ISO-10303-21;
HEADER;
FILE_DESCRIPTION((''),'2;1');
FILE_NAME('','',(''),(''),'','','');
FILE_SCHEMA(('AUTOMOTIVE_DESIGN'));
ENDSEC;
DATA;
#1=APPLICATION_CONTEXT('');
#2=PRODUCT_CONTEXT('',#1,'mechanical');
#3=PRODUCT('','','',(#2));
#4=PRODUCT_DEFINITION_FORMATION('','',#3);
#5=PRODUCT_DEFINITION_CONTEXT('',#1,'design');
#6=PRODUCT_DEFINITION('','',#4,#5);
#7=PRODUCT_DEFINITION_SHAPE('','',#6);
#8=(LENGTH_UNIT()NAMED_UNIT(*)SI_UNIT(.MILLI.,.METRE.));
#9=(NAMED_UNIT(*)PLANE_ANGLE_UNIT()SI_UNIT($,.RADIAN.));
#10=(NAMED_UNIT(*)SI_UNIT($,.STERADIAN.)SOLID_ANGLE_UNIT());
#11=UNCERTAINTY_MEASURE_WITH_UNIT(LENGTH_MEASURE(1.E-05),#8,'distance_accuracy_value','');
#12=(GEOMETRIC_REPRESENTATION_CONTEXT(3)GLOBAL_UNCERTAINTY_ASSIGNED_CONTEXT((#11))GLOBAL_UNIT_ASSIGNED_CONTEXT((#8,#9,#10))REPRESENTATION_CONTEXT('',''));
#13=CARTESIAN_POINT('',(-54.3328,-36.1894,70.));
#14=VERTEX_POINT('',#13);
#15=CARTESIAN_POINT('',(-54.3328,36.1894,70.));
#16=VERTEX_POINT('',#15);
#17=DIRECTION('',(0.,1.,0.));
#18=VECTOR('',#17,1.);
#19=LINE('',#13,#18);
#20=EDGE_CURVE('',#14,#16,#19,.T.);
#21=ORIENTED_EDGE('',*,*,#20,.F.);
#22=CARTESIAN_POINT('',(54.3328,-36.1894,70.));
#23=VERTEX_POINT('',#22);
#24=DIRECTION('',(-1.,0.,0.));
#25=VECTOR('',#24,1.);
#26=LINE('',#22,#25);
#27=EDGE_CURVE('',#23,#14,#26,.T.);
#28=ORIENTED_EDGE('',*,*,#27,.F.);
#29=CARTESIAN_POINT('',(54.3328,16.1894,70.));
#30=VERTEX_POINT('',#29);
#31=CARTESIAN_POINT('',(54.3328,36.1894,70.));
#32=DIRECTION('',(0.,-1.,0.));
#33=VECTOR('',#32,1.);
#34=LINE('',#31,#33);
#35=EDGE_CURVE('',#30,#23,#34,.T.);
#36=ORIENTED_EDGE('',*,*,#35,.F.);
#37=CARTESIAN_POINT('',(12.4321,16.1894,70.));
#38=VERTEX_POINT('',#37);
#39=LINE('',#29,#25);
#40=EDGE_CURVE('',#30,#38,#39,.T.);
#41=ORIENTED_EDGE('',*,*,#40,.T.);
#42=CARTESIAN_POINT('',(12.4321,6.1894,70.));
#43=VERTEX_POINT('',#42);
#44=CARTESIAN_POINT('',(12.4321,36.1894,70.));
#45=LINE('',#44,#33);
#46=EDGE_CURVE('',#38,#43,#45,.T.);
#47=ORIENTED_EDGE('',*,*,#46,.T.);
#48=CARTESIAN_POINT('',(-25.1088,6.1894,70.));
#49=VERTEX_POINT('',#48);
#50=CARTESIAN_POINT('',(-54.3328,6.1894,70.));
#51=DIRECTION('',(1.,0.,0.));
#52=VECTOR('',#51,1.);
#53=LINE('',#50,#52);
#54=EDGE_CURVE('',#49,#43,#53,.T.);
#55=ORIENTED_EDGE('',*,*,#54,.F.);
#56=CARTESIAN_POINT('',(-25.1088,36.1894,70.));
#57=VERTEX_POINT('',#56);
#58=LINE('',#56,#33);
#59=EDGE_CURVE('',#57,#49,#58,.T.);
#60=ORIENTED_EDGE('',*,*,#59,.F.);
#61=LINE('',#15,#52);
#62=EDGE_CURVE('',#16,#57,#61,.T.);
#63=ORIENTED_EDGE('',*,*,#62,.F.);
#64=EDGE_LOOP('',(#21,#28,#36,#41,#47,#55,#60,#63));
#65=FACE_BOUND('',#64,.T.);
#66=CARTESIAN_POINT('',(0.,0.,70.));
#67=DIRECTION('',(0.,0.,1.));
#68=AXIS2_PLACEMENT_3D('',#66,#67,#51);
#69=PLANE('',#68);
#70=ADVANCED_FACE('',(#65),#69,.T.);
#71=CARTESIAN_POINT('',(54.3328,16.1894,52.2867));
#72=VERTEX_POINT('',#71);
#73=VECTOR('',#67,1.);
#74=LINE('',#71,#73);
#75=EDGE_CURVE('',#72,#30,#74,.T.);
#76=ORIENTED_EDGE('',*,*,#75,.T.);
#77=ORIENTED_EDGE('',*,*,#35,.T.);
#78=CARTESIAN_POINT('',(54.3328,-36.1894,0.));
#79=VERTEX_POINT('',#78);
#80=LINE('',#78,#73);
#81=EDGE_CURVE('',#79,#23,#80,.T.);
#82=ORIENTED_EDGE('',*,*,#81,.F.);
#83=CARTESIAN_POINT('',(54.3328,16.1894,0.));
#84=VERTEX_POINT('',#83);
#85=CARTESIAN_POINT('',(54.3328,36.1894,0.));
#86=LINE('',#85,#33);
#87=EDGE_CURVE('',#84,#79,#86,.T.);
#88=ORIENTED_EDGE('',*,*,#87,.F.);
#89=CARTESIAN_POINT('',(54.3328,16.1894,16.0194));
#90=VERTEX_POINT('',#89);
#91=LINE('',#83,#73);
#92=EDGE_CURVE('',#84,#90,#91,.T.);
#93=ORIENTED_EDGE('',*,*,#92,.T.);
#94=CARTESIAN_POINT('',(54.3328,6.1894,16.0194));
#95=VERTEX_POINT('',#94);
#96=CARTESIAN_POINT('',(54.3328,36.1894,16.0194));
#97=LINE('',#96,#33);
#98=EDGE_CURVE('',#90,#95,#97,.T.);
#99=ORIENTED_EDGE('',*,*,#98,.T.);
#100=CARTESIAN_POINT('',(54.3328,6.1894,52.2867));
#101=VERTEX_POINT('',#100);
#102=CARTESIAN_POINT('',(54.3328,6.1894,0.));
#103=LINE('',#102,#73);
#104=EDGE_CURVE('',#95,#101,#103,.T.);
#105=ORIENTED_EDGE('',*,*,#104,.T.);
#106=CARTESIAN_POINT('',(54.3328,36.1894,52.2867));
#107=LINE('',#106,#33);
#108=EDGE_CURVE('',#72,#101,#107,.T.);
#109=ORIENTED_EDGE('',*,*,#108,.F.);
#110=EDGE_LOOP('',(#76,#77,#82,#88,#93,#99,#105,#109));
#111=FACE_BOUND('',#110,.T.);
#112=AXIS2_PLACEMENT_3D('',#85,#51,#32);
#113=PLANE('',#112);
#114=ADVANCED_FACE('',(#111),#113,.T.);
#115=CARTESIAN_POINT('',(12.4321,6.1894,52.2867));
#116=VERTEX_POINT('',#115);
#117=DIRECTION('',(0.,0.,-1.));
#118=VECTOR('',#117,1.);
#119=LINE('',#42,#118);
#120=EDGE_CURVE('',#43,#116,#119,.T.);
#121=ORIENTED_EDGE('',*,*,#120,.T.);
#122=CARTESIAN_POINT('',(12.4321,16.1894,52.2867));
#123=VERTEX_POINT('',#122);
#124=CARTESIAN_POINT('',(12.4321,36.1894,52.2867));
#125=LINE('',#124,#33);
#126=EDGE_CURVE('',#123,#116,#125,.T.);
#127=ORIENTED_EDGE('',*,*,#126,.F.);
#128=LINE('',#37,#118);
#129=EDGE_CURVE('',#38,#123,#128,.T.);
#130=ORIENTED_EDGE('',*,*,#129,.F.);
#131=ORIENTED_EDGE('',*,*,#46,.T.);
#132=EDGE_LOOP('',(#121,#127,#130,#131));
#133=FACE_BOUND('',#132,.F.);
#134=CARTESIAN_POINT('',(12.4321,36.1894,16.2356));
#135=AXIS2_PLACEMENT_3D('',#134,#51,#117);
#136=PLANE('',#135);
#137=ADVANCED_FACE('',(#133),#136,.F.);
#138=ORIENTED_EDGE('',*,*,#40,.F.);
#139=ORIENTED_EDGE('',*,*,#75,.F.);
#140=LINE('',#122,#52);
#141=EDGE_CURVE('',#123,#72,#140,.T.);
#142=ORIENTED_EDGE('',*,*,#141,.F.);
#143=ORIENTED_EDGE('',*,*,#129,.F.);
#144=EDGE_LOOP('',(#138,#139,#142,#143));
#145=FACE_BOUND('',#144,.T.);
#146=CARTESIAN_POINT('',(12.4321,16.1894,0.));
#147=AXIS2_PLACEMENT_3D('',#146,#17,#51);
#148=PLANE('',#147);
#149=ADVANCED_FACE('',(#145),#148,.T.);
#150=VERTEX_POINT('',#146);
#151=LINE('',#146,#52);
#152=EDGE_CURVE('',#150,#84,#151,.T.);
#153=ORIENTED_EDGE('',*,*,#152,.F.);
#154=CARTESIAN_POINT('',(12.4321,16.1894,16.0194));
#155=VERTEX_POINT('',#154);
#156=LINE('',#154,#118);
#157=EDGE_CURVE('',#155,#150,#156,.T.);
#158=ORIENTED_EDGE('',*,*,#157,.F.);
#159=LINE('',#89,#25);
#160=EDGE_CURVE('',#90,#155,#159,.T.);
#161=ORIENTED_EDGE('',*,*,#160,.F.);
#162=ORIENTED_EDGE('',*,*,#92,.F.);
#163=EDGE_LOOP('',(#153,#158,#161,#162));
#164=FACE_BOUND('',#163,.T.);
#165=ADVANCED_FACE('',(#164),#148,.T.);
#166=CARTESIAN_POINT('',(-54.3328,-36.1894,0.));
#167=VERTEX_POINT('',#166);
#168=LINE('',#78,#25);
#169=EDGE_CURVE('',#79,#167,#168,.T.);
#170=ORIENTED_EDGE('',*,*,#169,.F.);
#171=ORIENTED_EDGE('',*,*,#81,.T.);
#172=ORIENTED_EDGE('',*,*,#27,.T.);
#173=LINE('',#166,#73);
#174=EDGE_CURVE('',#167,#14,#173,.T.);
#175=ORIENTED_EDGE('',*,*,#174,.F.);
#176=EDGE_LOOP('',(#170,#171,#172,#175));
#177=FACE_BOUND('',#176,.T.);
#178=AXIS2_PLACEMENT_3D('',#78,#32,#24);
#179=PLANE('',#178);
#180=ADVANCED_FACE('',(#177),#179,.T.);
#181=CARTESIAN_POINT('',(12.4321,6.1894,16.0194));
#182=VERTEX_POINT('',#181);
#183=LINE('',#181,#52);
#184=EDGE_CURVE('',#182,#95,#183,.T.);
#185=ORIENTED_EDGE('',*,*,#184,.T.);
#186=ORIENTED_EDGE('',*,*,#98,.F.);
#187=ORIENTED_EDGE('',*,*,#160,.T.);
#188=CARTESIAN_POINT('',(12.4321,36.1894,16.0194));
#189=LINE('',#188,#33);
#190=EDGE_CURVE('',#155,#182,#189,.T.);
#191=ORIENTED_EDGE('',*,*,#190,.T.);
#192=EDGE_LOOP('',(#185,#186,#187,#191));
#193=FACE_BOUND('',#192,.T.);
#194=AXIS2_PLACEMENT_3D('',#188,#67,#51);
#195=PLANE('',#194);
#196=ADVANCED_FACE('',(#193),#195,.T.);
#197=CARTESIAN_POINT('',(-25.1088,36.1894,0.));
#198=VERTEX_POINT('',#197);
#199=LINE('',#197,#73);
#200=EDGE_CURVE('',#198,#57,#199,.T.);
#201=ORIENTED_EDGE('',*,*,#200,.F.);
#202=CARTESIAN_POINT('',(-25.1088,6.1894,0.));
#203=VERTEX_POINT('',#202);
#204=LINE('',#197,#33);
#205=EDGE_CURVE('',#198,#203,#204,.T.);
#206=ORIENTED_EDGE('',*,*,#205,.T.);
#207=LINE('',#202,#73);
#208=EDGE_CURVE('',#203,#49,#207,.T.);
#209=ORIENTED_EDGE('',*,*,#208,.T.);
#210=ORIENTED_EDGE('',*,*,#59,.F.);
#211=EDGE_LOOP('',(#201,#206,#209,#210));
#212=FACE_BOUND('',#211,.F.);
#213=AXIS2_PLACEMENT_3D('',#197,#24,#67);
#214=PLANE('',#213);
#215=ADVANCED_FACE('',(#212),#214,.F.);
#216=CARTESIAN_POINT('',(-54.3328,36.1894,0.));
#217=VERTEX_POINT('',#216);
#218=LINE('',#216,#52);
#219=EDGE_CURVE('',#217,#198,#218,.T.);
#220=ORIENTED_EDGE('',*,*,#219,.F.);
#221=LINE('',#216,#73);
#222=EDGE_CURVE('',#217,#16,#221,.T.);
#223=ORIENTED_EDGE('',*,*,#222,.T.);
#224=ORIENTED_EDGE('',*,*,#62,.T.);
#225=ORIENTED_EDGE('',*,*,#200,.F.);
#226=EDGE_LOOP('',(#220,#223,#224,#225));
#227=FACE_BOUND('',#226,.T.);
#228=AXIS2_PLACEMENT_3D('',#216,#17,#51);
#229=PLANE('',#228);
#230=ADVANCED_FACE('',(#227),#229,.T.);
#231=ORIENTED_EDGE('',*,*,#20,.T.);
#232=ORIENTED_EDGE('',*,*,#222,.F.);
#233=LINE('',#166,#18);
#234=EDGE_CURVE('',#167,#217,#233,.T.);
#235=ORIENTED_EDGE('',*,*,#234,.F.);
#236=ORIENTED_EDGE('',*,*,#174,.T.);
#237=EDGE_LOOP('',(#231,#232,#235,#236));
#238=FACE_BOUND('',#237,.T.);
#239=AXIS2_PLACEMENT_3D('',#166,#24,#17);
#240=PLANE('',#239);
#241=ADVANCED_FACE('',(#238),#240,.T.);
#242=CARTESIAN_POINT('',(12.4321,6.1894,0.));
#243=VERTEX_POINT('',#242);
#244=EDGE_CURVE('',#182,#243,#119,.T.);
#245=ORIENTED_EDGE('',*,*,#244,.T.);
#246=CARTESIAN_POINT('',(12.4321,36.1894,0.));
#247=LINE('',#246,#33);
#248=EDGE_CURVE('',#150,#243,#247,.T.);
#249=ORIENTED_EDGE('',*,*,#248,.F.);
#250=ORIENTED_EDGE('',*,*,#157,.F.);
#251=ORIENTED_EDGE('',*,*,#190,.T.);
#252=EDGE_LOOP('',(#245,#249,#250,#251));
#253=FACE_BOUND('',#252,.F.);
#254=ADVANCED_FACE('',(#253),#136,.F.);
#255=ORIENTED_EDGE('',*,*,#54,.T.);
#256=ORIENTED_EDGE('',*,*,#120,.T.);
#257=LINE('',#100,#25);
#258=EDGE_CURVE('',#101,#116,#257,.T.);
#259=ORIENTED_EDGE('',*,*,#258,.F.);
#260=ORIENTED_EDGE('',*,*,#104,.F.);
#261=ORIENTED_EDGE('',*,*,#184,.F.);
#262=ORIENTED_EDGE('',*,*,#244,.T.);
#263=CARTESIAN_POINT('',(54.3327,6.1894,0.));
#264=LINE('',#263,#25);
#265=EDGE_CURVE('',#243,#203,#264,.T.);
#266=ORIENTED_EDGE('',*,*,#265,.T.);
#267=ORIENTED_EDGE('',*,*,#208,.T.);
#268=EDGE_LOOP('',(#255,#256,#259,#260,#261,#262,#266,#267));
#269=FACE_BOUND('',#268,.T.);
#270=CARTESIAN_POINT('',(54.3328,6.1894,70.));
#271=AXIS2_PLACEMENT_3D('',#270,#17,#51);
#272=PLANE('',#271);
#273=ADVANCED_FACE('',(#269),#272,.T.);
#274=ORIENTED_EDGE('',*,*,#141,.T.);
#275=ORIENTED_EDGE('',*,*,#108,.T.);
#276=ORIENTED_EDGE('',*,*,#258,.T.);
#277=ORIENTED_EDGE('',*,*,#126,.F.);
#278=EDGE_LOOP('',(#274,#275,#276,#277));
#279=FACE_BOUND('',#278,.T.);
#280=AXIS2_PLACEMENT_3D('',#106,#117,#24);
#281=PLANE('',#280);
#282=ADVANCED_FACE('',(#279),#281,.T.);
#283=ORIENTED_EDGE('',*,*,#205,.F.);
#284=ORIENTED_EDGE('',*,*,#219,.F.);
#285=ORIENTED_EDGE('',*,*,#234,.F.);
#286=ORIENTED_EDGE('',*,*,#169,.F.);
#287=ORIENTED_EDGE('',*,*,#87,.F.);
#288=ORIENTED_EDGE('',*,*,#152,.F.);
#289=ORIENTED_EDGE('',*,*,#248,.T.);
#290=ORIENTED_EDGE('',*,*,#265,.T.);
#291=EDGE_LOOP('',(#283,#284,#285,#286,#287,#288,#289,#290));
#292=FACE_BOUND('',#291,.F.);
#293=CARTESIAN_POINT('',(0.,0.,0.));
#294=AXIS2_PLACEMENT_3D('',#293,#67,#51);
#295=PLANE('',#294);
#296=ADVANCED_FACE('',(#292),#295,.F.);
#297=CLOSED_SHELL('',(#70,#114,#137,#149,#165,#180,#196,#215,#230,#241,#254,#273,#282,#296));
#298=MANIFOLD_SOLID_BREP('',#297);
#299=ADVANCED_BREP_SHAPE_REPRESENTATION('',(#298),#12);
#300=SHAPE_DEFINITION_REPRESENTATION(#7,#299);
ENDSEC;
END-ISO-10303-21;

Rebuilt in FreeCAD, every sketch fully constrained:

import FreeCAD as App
import Part
import Sketcher
Q = App.Units.Quantity

doc = App.newDocument("Part")
body = doc.addObject("PartDesign::Body", "Body")

# Sketch on XY plane
sketch1 = body.newObject("Sketcher::SketchObject", "Sketch")
sketch1.AttachmentSupport = (doc.getObject("XY_Plane"), [""])
sketch1.MapMode = "FlatFace"
sketch1.addGeometry([
    Part.LineSegment(App.Vector(-54.3328, -36.1894, 0), App.Vector(54.3328, -36.1894, 0)),
    Part.LineSegment(App.Vector(54.3328, -36.1894, 0), App.Vector(54.3328, 36.1894, 0)),
    Part.LineSegment(App.Vector(54.3328, 36.1894, 0), App.Vector(-54.3328, 36.1894, 0)),
    Part.LineSegment(App.Vector(-54.3328, 36.1894, 0), App.Vector(-54.3328, -36.1894, 0)),
], False)
sketch1.addConstraint([
    Sketcher.Constraint("Coincident", 0, 2, 1, 1),
    Sketcher.Constraint("Coincident", 1, 2, 2, 1),
    Sketcher.Constraint("Coincident", 2, 2, 3, 1),
    Sketcher.Constraint("Coincident", 3, 2, 0, 1),
    Sketcher.Constraint("Horizontal", 0),
    Sketcher.Constraint("Vertical", 1),
    Sketcher.Constraint("Horizontal", 2),
    Sketcher.Constraint("Vertical", 3),
    Sketcher.Constraint("Symmetric", 0, 2, 2, 2, -1, 1),
    Sketcher.Constraint("DistanceX", 0, 1, 0, 2, 108.6656),
    Sketcher.Constraint("DistanceY", 1, 1, 1, 2, 72.3788),
])
pad1 = body.newObject("PartDesign::Pad", "Pad")
pad1.Profile = sketch1
pad1.Length = Q("2.7559055 in")

# Sketch on XZ plane
sketch2 = body.newObject("Sketcher::SketchObject", "Sketch001")
sketch2.AttachmentSupport = (doc.getObject("XZ_Plane"), [""])
sketch2.MapMode = "FlatFace"
sketch2.AttachmentOffset = App.Placement(App.Vector(0, 0, -36.1894), App.Rotation())
sketch2.addGeometry([
    Part.LineSegment(App.Vector(-25.1088, 0, 0), App.Vector(-25.1088, 70, 0)),
    Part.LineSegment(App.Vector(-25.1088, 70, 0), App.Vector(12.4321, 70, 0)),
    Part.LineSegment(App.Vector(12.4321, 70, 0), App.Vector(12.4321, 0, 0)),
    Part.LineSegment(App.Vector(12.4321, 0, 0), App.Vector(-25.1088, 0, 0)),
], False)
sketch2.addConstraint([
    Sketcher.Constraint("Coincident", 0, 2, 1, 1),
    Sketcher.Constraint("Coincident", 1, 2, 2, 1),
    Sketcher.Constraint("Coincident", 2, 2, 3, 1),
    Sketcher.Constraint("Coincident", 3, 2, 0, 1),
    Sketcher.Constraint("Vertical", 0),
    Sketcher.Constraint("Horizontal", 1),
    Sketcher.Constraint("Vertical", 2),
    Sketcher.Constraint("Horizontal", 3),
    Sketcher.Constraint("PointOnObject", 2, 2, -1),
    Sketcher.Constraint("DistanceX", 1, 1, 1, 2, Q("1.478 in")),
    Sketcher.Constraint("DistanceY", 0, 1, 0, 2, Q("2.7559 in")),
    Sketcher.Constraint("DistanceX", 0, 2, -1, 1, 25.1088),
])
pocket1 = body.newObject("PartDesign::Pocket", "Pocket")
pocket1.Profile = sketch2
pocket1.Length = Q("1.1811024 in")
pocket1.Reversed = True

# Sketch on XZ plane
sketch3 = body.newObject("Sketcher::SketchObject", "Sketch002")
sketch3.AttachmentSupport = (doc.getObject("XZ_Plane"), [""])
sketch3.MapMode = "FlatFace"
sketch3.AttachmentOffset = App.Placement(App.Vector(0, 0, -36.1894), App.Rotation())
sketch3.addGeometry([
    Part.LineSegment(App.Vector(54.3328, 16.0194, 0), App.Vector(12.4321, 16.0194, 0)),
    Part.LineSegment(App.Vector(12.4321, 16.0194, 0), App.Vector(12.4321, 52.2867, 0)),
    Part.LineSegment(App.Vector(12.4321, 52.2867, 0), App.Vector(54.3328, 52.2867, 0)),
    Part.LineSegment(App.Vector(54.3328, 52.2867, 0), App.Vector(54.3328, 16.0194, 0)),
], False)
sketch3.addConstraint([
    Sketcher.Constraint("Coincident", 0, 2, 1, 1),
    Sketcher.Constraint("Coincident", 1, 2, 2, 1),
    Sketcher.Constraint("Coincident", 2, 2, 3, 1),
    Sketcher.Constraint("Coincident", 3, 2, 0, 1),
    Sketcher.Constraint("Horizontal", 0),
    Sketcher.Constraint("Vertical", 1),
    Sketcher.Constraint("Horizontal", 2),
    Sketcher.Constraint("Vertical", 3),
    Sketcher.Constraint("DistanceX", 0, 2, 0, 1, 41.9007),
    Sketcher.Constraint("DistanceY", 1, 1, 1, 2, 36.2673),
    Sketcher.Constraint("DistanceX", -1, 1, 0, 2, 12.432),
    Sketcher.Constraint("DistanceY", -1, 1, 0, 2, 16.0194),
])
pocket2 = body.newObject("PartDesign::Pocket", "Pocket001")
pocket2.Profile = sketch3
pocket2.Length = Q("1.1811024 in")
pocket2.Reversed = True

# Sketch on XZ plane
sketch4 = body.newObject("Sketcher::SketchObject", "Sketch003")
sketch4.AttachmentSupport = (doc.getObject("XZ_Plane"), [""])
sketch4.MapMode = "FlatFace"
sketch4.AttachmentOffset = App.Placement(App.Vector(0, 0, -36.1894), App.Rotation())
sketch4.addGeometry([
    Part.LineSegment(App.Vector(54.3328, 16.0194, 0), App.Vector(54.3328, 0, 0)),
    Part.LineSegment(App.Vector(54.3328, 0, 0), App.Vector(12.4321, 0, 0)),
    Part.LineSegment(App.Vector(12.4321, 0, 0), App.Vector(12.4321, 16.0194, 0)),
    Part.LineSegment(App.Vector(12.4321, 16.0194, 0), App.Vector(54.3328, 16.0194, 0)),
], False)
sketch4.addConstraint([
    Sketcher.Constraint("Coincident", 0, 2, 1, 1),
    Sketcher.Constraint("Coincident", 1, 2, 2, 1),
    Sketcher.Constraint("Coincident", 2, 2, 3, 1),
    Sketcher.Constraint("Coincident", 3, 2, 0, 1),
    Sketcher.Constraint("Vertical", 0),
    Sketcher.Constraint("Horizontal", 1),
    Sketcher.Constraint("Vertical", 2),
    Sketcher.Constraint("Horizontal", 3),
    Sketcher.Constraint("PointOnObject", 0, 2, -1),
    Sketcher.Constraint("DistanceX", 1, 2, 1, 1, 41.9007),
    Sketcher.Constraint("DistanceY", 0, 2, 0, 1, 16.0194),
    Sketcher.Constraint("DistanceX", -1, 1, 0, 2, 54.3328),
])
pocket3 = body.newObject("PartDesign::Pocket", "Pocket002")
pocket3.Profile = sketch4
pocket3.Length = Q("0.7874016 in")
pocket3.Reversed = True

# Sketch on XZ plane
sketch5 = body.newObject("Sketcher::SketchObject", "Sketch004")
sketch5.AttachmentSupport = (doc.getObject("XZ_Plane"), [""])
sketch5.MapMode = "FlatFace"
sketch5.AttachmentOffset = App.Placement(App.Vector(0, 0, -36.1894), App.Rotation())
sketch5.addGeometry([
    Part.LineSegment(App.Vector(12.4321, 70, 0), App.Vector(54.3328, 70, 0)),
    Part.LineSegment(App.Vector(54.3328, 70, 0), App.Vector(54.3328, 52.2867, 0)),
    Part.LineSegment(App.Vector(54.3328, 52.2867, 0), App.Vector(12.4321, 52.2867, 0)),
    Part.LineSegment(App.Vector(12.4321, 52.2867, 0), App.Vector(12.4321, 70, 0)),
], False)
sketch5.addConstraint([
    Sketcher.Constraint("Coincident", 0, 2, 1, 1),
    Sketcher.Constraint("Coincident", 1, 2, 2, 1),
    Sketcher.Constraint("Coincident", 2, 2, 3, 1),
    Sketcher.Constraint("Coincident", 3, 2, 0, 1),
    Sketcher.Constraint("Horizontal", 0),
    Sketcher.Constraint("Vertical", 1),
    Sketcher.Constraint("Horizontal", 2),
    Sketcher.Constraint("Vertical", 3),
    Sketcher.Constraint("DistanceX", 0, 1, 0, 2, 41.9007),
    Sketcher.Constraint("DistanceY", 1, 2, 1, 1, 17.7133),
    Sketcher.Constraint("DistanceY", -1, 1, 0, 2, Q("2.7559 in")),
    Sketcher.Constraint("DistanceX", -1, 1, 0, 2, 54.3328),
])
pocket4 = body.newObject("PartDesign::Pocket", "Pocket003")
pocket4.Profile = sketch5
pocket4.Length = Q("0.7874016 in")
pocket4.Reversed = True

doc.recompute()
